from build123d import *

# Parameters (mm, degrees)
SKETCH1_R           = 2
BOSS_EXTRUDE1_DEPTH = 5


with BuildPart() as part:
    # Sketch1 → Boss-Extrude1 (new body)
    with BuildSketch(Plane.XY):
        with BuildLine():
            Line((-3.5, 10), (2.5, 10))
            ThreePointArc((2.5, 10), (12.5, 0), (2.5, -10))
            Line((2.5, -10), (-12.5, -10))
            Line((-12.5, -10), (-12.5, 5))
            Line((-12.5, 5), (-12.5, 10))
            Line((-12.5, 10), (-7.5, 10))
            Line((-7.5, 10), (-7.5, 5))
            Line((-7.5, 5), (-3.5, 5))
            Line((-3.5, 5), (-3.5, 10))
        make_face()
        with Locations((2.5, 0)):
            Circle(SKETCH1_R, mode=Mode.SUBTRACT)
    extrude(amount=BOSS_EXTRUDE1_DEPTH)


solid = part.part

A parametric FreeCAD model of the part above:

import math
import FreeCAD as App
import Part
import Sketcher
from FreeCAD import Vector
Q = App.Units.Quantity

doc = App.newDocument("Part")
body = doc.addObject("PartDesign::Body", "Body")

# Sketch on XY plane
sketch1 = doc.addObject("Sketcher::SketchObject", "Sketch")
body.addObject(sketch1)
sketch1.AttachmentSupport = (doc.XY_Plane, [""])
sketch1.MapMode = "FlatFace"
sketch1.addGeometry([
    Part.LineSegment(Vector(2.5, 10, 0), Vector(-3.5, 10, 0)),  # 0
    Part.LineSegment(Vector(-3.5, 10, 0), Vector(-3.5, 5, 0)),  # 1
    Part.LineSegment(Vector(-3.5, 5, 0), Vector(-7.5, 5, 0)),  # 2
    Part.LineSegment(Vector(-7.5, 5, 0), Vector(-7.5, 10, 0)),  # 3
    Part.LineSegment(Vector(-7.5, 10, 0), Vector(-12.5, 10, 0)),  # 4
    Part.LineSegment(Vector(-12.5, 10, 0), Vector(-12.5, -10, 0)),  # 5
    Part.LineSegment(Vector(-12.5, -10, 0), Vector(2.5, -10, 0)),  # 6
    Part.ArcOfCircle(Part.Circle(Vector(2.5, 0, 0), Vector(0, 0, 1), 10), math.radians(-90), math.radians(90)),  # 7
    Part.Circle(Vector(2.5, 0, 0), Vector(0, 0, 1), 2),  # 8
], False)
sketch1.addConstraint([
    Sketcher.Constraint("Coincident", 0, 2, 1, 1),
    Sketcher.Constraint("Coincident", 1, 2, 2, 1),
    Sketcher.Constraint("Coincident", 2, 2, 3, 1),
    Sketcher.Constraint("Coincident", 3, 2, 4, 1),
    Sketcher.Constraint("Coincident", 4, 2, 5, 1),
    Sketcher.Constraint("Coincident", 5, 2, 6, 1),
    Sketcher.Constraint("Tangent", 6, 2, 7, 1),
    Sketcher.Constraint("Tangent", 7, 2, 0, 1),
    Sketcher.Constraint("Horizontal", 0),
    Sketcher.Constraint("Vertical", 1),
    Sketcher.Constraint("Horizontal", 2),
    Sketcher.Constraint("Vertical", 3),
    Sketcher.Constraint("Horizontal", 4),
    Sketcher.Constraint("Vertical", 5),
    Sketcher.Constraint("Horizontal", 6),
    Sketcher.Constraint("Coincident", 8, 3, 7, 3),
    Sketcher.Constraint("PointOnObject", 7, 3, -1),
    Sketcher.Constraint("Horizontal", 0, 2, 3, 2),
    Sketcher.Constraint("Equal", 4, 1),
    Sketcher.Constraint("Diameter", 8, Q("4 mm")),
    Sketcher.Constraint("Radius", 7, Q("10 mm")),
    Sketcher.Constraint("DistanceX", 0, 2, 0, 1, Q("6 mm")),
    Sketcher.Constraint("DistanceX", 2, 2, 2, 1, Q("4 mm")),
    Sketcher.Constraint("DistanceX", 4, 2, 4, 1, Q("5 mm")),
    Sketcher.Constraint("DistanceX", -1, 1, 7, 3, Q("2.5 mm")),
])
pad1 = doc.addObject("PartDesign::Pad", "Pad")
body.addObject(pad1)
pad1.Profile = sketch1
pad1.Length = 5

doc.recompute()
